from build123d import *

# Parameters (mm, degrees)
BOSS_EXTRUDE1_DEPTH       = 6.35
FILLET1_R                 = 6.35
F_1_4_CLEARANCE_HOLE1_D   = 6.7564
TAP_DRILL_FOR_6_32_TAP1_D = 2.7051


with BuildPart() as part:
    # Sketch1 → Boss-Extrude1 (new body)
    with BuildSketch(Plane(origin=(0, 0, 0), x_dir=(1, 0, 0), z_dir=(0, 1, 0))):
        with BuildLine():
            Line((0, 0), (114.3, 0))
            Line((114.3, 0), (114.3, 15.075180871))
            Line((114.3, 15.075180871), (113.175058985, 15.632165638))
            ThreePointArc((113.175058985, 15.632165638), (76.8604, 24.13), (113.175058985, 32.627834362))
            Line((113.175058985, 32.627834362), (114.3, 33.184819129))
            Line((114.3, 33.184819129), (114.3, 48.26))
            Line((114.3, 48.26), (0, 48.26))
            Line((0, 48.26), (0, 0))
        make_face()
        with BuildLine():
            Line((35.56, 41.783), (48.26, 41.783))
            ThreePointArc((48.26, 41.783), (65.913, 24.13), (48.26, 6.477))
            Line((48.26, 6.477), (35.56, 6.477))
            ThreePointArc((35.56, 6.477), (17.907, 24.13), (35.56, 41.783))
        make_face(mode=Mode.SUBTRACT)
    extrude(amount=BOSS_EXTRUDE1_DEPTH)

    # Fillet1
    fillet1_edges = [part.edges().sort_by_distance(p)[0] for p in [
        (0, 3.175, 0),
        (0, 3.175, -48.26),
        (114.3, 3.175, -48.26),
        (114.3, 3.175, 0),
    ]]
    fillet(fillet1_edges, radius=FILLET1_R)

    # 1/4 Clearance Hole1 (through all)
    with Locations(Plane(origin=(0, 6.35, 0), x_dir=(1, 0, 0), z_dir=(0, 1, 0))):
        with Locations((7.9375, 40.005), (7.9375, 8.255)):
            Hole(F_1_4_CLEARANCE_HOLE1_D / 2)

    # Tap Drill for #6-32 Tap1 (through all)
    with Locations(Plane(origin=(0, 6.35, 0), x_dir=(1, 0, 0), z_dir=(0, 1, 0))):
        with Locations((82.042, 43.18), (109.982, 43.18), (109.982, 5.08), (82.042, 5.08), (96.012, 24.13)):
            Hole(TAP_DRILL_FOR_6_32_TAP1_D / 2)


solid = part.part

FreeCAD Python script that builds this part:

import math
import FreeCAD as App
import Part
import Sketcher
Q = App.Units.Quantity


def edges_at(feature, points):
    """Names of the edges that pass closest to the given points."""
    edges = feature.Shape.Edges
    near = lambda p: min(range(len(edges)), key=lambda i: edges[i].distToShape(Part.Vertex(*p))[0])
    return sorted({f"Edge{near(p) + 1}" for p in points})

doc = App.newDocument("Part")
body = doc.addObject("PartDesign::Body", "Body")

# Sketch on XZ plane
sketch1 = body.newObject("Sketcher::SketchObject", "Sketch")
sketch1.AttachmentSupport = (doc.getObject("XZ_Plane"), [""])
sketch1.MapMode = "FlatFace"
sketch1.addGeometry(Part.LineSegment(App.Vector(0, 0, 0), App.Vector(114.3, 0, 0)), False)
sketch1.addGeometry(Part.LineSegment(App.Vector(114.3, 0, 0), App.Vector(114.3, -15.1, 0)), False)
sketch1.addGeometry(Part.LineSegment(App.Vector(114.3, -15.1, 0), App.Vector(113.2, -15.6, 0)), False)
sketch1.addGeometry(Part.ArcOfCircle(Part.Circle(App.Vector(96, -24.1, 0), App.Vector(0, 0, 1), 19.2), math.radians(26), math.radians(334)), False)
sketch1.addGeometry(Part.LineSegment(App.Vector(113.2, -32.6, 0), App.Vector(114.3, -33.2, 0)), False)
sketch1.addGeometry(Part.LineSegment(App.Vector(114.3, -33.2, 0), App.Vector(114.3, -48.3, 0)), False)
sketch1.addGeometry(Part.LineSegment(App.Vector(114.3, -48.3, 0), App.Vector(0, -48.3, 0)), False)
sketch1.addGeometry(Part.LineSegment(App.Vector(0, -48.3, 0), App.Vector(0, 0, 0)), False)
sketch1.addGeometry(Part.ArcOfCircle(Part.Circle(App.Vector(35.6, -24.1, 0), App.Vector(0, 0, 1), 17.7), math.radians(90), math.radians(270)), False)
sketch1.addGeometry(Part.LineSegment(App.Vector(35.6, -41.8, 0), App.Vector(48.3, -41.8, 0)), False)
sketch1.addGeometry(Part.ArcOfCircle(Part.Circle(App.Vector(48.3, -24.1, 0), App.Vector(0, 0, 1), 17.7), math.radians(-90), math.radians(90)), False)
sketch1.addGeometry(Part.LineSegment(App.Vector(48.3, -6.5, 0), App.Vector(35.6, -6.5, 0)), False)
sketch1.addConstraint(Sketcher.Constraint("Coincident", 0, 2, 1, 1))
sketch1.addConstraint(Sketcher.Constraint("Coincident", 1, 2, 2, 1))
sketch1.addConstraint(Sketcher.Constraint("Coincident", 2, 2, 3, 1))
sketch1.addConstraint(Sketcher.Constraint("Coincident", 3, 2, 4, 1))
sketch1.addConstraint(Sketcher.Constraint("Coincident", 4, 2, 5, 1))
sketch1.addConstraint(Sketcher.Constraint("Coincident", 5, 2, 6, 1))
sketch1.addConstraint(Sketcher.Constraint("Coincident", 6, 2, 7, 1))
sketch1.addConstraint(Sketcher.Constraint("Coincident", 7, 2, 0, 1))
sketch1.addConstraint(Sketcher.Constraint("Tangent", 8, 2, 9, 1))
sketch1.addConstraint(Sketcher.Constraint("Tangent", 9, 2, 10, 1))
sketch1.addConstraint(Sketcher.Constraint("Tangent", 10, 2, 11, 1))
sketch1.addConstraint(Sketcher.Constraint("Tangent", 11, 2, 8, 1))
sketch1.addConstraint(Sketcher.Constraint("Horizontal", 0))
sketch1.addConstraint(Sketcher.Constraint("Vertical", 1))
sketch1.addConstraint(Sketcher.Constraint("Vertical", 5))
sketch1.addConstraint(Sketcher.Constraint("Horizontal", 6))
sketch1.addConstraint(Sketcher.Constraint("Vertical", 7))
sketch1.addConstraint(Sketcher.Constraint("Horizontal", 9))
sketch1.addConstraint(Sketcher.Constraint("Horizontal", 11))
sketch1.addConstraint(Sketcher.Constraint("Coincident", 7, 2, -1, 1))
sketch1.addConstraint(Sketcher.Constraint("Horizontal", 3, 3, 8, 3))
sketch1.addConstraint(Sketcher.Constraint("Vertical", 2, 2, 3, 2))
sketch1.addConstraint(Sketcher.Constraint("Vertical", 1, 2, 4, 2))
sketch1.addConstraint(Sketcher.Constraint("Equal", 1, 5))
sketch1.addConstraint(Sketcher.Constraint("Equal", 2, 4))
sketch1.addConstraint(Sketcher.Constraint("DistanceX", 0, 1, 0, 2, Q("4.5 in")))
sketch1.addConstraint(Sketcher.Constraint("DistanceX", 9, 1, 9, 2, Q("0.5 in")))
sketch1.addConstraint(Sketcher.Constraint("DistanceY", 7, 1, 7, 2, Q("1.9 in")))
sketch1.addConstraint(Sketcher.Constraint("Radius", 3, Q("0.754 in")))
sketch1.addConstraint(Sketcher.Constraint("Radius", 8, Q("0.695 in")))
sketch1.addConstraint(Sketcher.Constraint("DistanceX", -1, 1, 8, 3, Q("1.4 in")))
sketch1.addConstraint(Sketcher.Constraint("DistanceX", -1, 1, 3, 3, Q("3.78 in")))
sketch1.addConstraint(Sketcher.Constraint("DistanceY", 1, 2, 1, 1, 15.075181))
sketch1.addConstraint(Sketcher.Constraint("DistanceX", -1, 1, 2, 2, 113.175059))
pad1 = body.newObject("PartDesign::Pad", "Pad")
pad1.Profile = sketch1
pad1.Length = Q("0.25 in")
pad1.Reversed = True
doc.recompute()

fillet = body.newObject("PartDesign::Fillet", "Fillet")
fillet.Base = (pad1, edges_at(pad1, [
    (0, 3.175, 0),
    (0, 3.175, -48.26),
    (114.3, 3.175, -48.26),
    (114.3, 3.175, 0),
]))
fillet.Radius = Q("0.25 in")

# Sketch on XZ plane
sketch2 = body.newObject("Sketcher::SketchObject", "Sketch001")
sketch2.AttachmentSupport = (doc.getObject("XZ_Plane"), [""])
sketch2.MapMode = "FlatFace"
sketch2.AttachmentOffset = App.Placement(App.Vector(0, 0, -0.25 * 25.4), App.Rotation())
sketch2.addGeometry(Part.Circle(App.Vector(7.9, -40, 0), App.Vector(0, 0, 1), 3.4), False)
sketch2.addGeometry(Part.Circle(App.Vector(7.9, -8.3, 0), App.Vector(0, 0, 1), 3.4), False)
sketch2.addConstraint(Sketcher.Constraint("Equal", 0, 1))
sketch2.addConstraint(Sketcher.Constraint("Vertical", 0, 3, 1, 3))
sketch2.addConstraint(Sketcher.Constraint("Diameter", 0, Q("0.266 in")))
sketch2.addConstraint(Sketcher.Constraint("DistanceY", 0, 3, 1, 3, Q("1.25 in")))
sketch2.addConstraint(Sketcher.Constraint("DistanceX", -1, 1, 0, 3, Q("0.3125 in")))
sketch2.addConstraint(Sketcher.Constraint("DistanceY", 0, 3, -1, 1, Q("1.575 in")))
doc.recompute()
hole = body.newObject("PartDesign::Hole", "Hole")
hole.Profile = sketch2
hole.ThreadType = "None"
hole.Diameter = Q("0.266 in")
hole.DepthType = "ThroughAll"
hole.Reversed = True

# Sketch on XZ plane
sketch3 = body.newObject("Sketcher::SketchObject", "Sketch002")
sketch3.AttachmentSupport = (doc.getObject("XZ_Plane"), [""])
sketch3.MapMode = "FlatFace"
sketch3.AttachmentOffset = App.Placement(App.Vector(0, 0, -0.25 * 25.4), App.Rotation())
sketch3.addGeometry(Part.Circle(App.Vector(82, -43.2, 0), App.Vector(0, 0, 1), 1.4), False)
sketch3.addGeometry(Part.Circle(App.Vector(110, -43.2, 0), App.Vector(0, 0, 1), 1.4), False)
sketch3.addGeometry(Part.Circle(App.Vector(110, -5.1, 0), App.Vector(0, 0, 1), 1.4), False)
sketch3.addGeometry(Part.Circle(App.Vector(82, -5.1, 0), App.Vector(0, 0, 1), 1.4), False)
sketch3.addGeometry(Part.Circle(App.Vector(96, -24.1, 0), App.Vector(0, 0, 1), 1.4), False)
sketch3.addConstraint(Sketcher.Constraint("Equal", 0, 1))
sketch3.addConstraint(Sketcher.Constraint("Equal", 1, 2))
sketch3.addConstraint(Sketcher.Constraint("Equal", 2, 3))
sketch3.addConstraint(Sketcher.Constraint("Equal", 3, 4))
sketch3.addConstraint(Sketcher.Constraint("Horizontal", 0, 3, 1, 3))
sketch3.addConstraint(Sketcher.Constraint("Horizontal", 2, 3, 3, 3))
sketch3.addConstraint(Sketcher.Constraint("Vertical", 1, 3, 2, 3))
sketch3.addConstraint(Sketcher.Constraint("Vertical", 0, 3, 3, 3))
sketch3.addConstraint(Sketcher.Constraint("Diameter", 0, Q("0.1065 in")))
sketch3.addConstraint(Sketcher.Constraint("DistanceY", 0, 3, -1, 1, Q("1.7 in")))
sketch3.addConstraint(Sketcher.Constraint("DistanceY", 2, 3, -1, 1, Q("0.2 in")))
sketch3.addConstraint(Sketcher.Constraint("DistanceX", 0, 3, 1, 3, Q("1.1 in")))
sketch3.addConstraint(Sketcher.Constraint("DistanceX", -1, 1, 0, 3, Q("3.23 in")))
sketch3.addConstraint(Sketcher.Constraint("DistanceX", -1, 1, 4, 3, Q("3.78 in")))
sketch3.addConstraint(Sketcher.Constraint("DistanceY", 4, 3, -1, 1, Q("0.95 in")))
doc.recompute()
hole2 = body.newObject("PartDesign::Hole", "Hole001")
hole2.Profile = sketch3
hole2.ThreadType = "None"
hole2.Diameter = Q("0.1065 in")
hole2.DepthType = "ThroughAll"
hole2.Reversed = True

doc.recompute()
